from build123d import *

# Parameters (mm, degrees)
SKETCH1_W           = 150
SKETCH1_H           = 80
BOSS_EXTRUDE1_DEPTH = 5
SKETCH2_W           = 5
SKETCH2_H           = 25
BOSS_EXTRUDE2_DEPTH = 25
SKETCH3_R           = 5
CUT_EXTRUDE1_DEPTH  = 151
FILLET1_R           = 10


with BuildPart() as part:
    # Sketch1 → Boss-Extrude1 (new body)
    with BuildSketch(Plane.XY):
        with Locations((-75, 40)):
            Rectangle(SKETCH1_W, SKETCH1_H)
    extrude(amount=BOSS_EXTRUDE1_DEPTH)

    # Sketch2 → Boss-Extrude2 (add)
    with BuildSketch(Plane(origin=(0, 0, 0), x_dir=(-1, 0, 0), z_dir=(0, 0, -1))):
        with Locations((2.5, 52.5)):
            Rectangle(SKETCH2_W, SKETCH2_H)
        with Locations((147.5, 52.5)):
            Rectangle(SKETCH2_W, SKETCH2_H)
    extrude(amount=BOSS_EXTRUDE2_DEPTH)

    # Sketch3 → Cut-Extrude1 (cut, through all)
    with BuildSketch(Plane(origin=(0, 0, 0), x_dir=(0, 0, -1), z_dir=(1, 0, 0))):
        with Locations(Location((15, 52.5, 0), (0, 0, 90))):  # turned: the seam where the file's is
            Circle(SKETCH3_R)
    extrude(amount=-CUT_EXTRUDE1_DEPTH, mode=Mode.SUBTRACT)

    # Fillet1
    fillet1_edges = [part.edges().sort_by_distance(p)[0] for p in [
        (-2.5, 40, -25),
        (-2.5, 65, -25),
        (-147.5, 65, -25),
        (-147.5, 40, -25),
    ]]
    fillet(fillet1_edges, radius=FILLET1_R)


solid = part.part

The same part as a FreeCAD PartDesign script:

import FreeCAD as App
import Part
import Sketcher

V = App.Vector


def edges_at(feature, points):
    """Names of the edges that pass closest to the given points."""
    edges = feature.Shape.Edges
    near = lambda p: min(range(len(edges)), key=lambda i: edges[i].distToShape(Part.Vertex(*p))[0])
    return sorted({f"Edge{near(p) + 1}" for p in points})

doc = App.newDocument("Part")
params = doc.addObject("Spreadsheet::Sheet", "Params")
for row, (alias, value) in enumerate([
    ("sketch1_width", "150 mm"),
    ("sketch1_height", "80 mm"),
    ("pad1_length", "5 mm"),
    ("sketch2_width", "5 mm"),
    ("sketch2_height", "25 mm"),
    ("pad2_length", "25 mm"),
    ("sketch3_diameter", "10 mm"),
    ("fillet_radius", "10 mm"),
], start=1):
    params.set(f"A{row}", alias)
    params.set(f"B{row}", "=" + value)
    params.setAlias(f"B{row}", alias)

body = doc.addObject("PartDesign::Body", "Body")

# Sketch on XY plane
sketch1 = body.newObject("Sketcher::SketchObject", "Sketch")
sketch1.AttachmentSupport = (doc.getObject("XY_Plane"), [""])
sketch1.MapMode = "FlatFace"
sketch1.addGeometry(Part.LineSegment(V(-150, 80, 0), V(-150, 0, 0)), False)
sketch1.addGeometry(Part.LineSegment(V(-150, 0, 0), V(0, 0, 0)), False)
sketch1.addGeometry(Part.LineSegment(V(0, 0, 0), V(0, 80, 0)), False)
sketch1.addGeometry(Part.LineSegment(V(0, 80, 0), V(-150, 80, 0)), False)
sketch1.addConstraint(Sketcher.Constraint("Coincident", 0, 2, 1, 1))
sketch1.addConstraint(Sketcher.Constraint("Coincident", 1, 2, 2, 1))
sketch1.addConstraint(Sketcher.Constraint("Coincident", 2, 2, 3, 1))
sketch1.addConstraint(Sketcher.Constraint("Coincident", 3, 2, 0, 1))
sketch1.addConstraint(Sketcher.Constraint("Vertical", 0))
sketch1.addConstraint(Sketcher.Constraint("Horizontal", 1))
sketch1.addConstraint(Sketcher.Constraint("Vertical", 2))
sketch1.addConstraint(Sketcher.Constraint("Horizontal", 3))
sketch1.addConstraint(Sketcher.Constraint("Coincident", 1, 2, -1, 1))
sketch1.addConstraint(Sketcher.Constraint("DistanceX", 1, 1, 1, 2, 150.0))
sketch1.addConstraint(Sketcher.Constraint("DistanceY", 0, 2, 0, 1, 80.0))
sketch1.setExpression("Constraints[9]", "Params.sketch1_width")
sketch1.setExpression("Constraints[10]", "Params.sketch1_height")
pad1 = body.newObject("PartDesign::Pad", "Pad")
pad1.Profile = sketch1
pad1.setExpression("Length", "Params.pad1_length")

# Sketch on XY plane
sketch2 = body.newObject("Sketcher::SketchObject", "Sketch001")
sketch2.AttachmentSupport = (doc.getObject("XY_Plane"), [""])
sketch2.MapMode = "FlatFace"
sketch2.addGeometry(Part.LineSegment(V(0, 65, 0), V(0, 40, 0)), False)
sketch2.addGeometry(Part.LineSegment(V(0, 40, 0), V(-5, 40, 0)), False)
sketch2.addGeometry(Part.LineSegment(V(-5, 40, 0), V(-5, 65, 0)), False)
sketch2.addGeometry(Part.LineSegment(V(-5, 65, 0), V(0, 65, 0)), False)
sketch2.addGeometry(Part.LineSegment(V(-145, 65, 0), V(-145, 40, 0)), False)
sketch2.addGeometry(Part.LineSegment(V(-145, 40, 0), V(-150, 40, 0)), False)
sketch2.addGeometry(Part.LineSegment(V(-150, 40, 0), V(-150, 65, 0)), False)
sketch2.addGeometry(Part.LineSegment(V(-150, 65, 0), V(-145, 65, 0)), False)
sketch2.addConstraint(Sketcher.Constraint("Coincident", 0, 2, 1, 1))
sketch2.addConstraint(Sketcher.Constraint("Coincident", 1, 2, 2, 1))
sketch2.addConstraint(Sketcher.Constraint("Coincident", 2, 2, 3, 1))
sketch2.addConstraint(Sketcher.Constraint("Coincident", 3, 2, 0, 1))
sketch2.addConstraint(Sketcher.Constraint("Coincident", 4, 2, 5, 1))
sketch2.addConstraint(Sketcher.Constraint("Coincident", 5, 2, 6, 1))
sketch2.addConstraint(Sketcher.Constraint("Coincident", 6, 2, 7, 1))
sketch2.addConstraint(Sketcher.Constraint("Coincident", 7, 2, 4, 1))
sketch2.addConstraint(Sketcher.Constraint("Vertical", 0))
sketch2.addConstraint(Sketcher.Constraint("Horizontal", 1))
sketch2.addConstraint(Sketcher.Constraint("Vertical", 2))
sketch2.addConstraint(Sketcher.Constraint("Horizontal", 3))
sketch2.addConstraint(Sketcher.Constraint("Vertical", 4))
sketch2.addConstraint(Sketcher.Constraint("Horizontal", 5))
sketch2.addConstraint(Sketcher.Constraint("Vertical", 6))
sketch2.addConstraint(Sketcher.Constraint("Horizontal", 7))
sketch2.addConstraint(Sketcher.Constraint("PointOnObject", 0, 2, -2))
sketch2.addConstraint(Sketcher.Constraint("Horizontal", 1, 2, 4, 2))
sketch2.addConstraint(Sketcher.Constraint("Horizontal", 3, 2, 6, 2))
sketch2.addConstraint(Sketcher.Constraint("Equal", 3, 5))
sketch2.addConstraint(Sketcher.Constraint("DistanceX", 1, 2, 1, 1, 5.0))
sketch2.addConstraint(Sketcher.Constraint("DistanceY", 0, 2, 0, 1, 25.0))
sketch2.addConstraint(Sketcher.Constraint("DistanceY", -1, 1, 0, 2, 40.0))
sketch2.addConstraint(Sketcher.Constraint("DistanceX", 4, 2, -1, 1, 145.0))
sketch2.setExpression("Constraints[20]", "Params.sketch2_width")
sketch2.setExpression("Constraints[21]", "Params.sketch2_height")
pad2 = body.newObject("PartDesign::Pad", "Pad001")
pad2.Profile = sketch2
pad2.setExpression("Length", "Params.pad2_length")
pad2.Reversed = True

# Sketch on YZ plane
sketch3 = body.newObject("Sketcher::SketchObject", "Sketch002")
sketch3.AttachmentSupport = (doc.getObject("YZ_Plane"), [""])
sketch3.MapMode = "FlatFace"
sketch3.addGeometry(Part.Circle(V(52, -15, 0), V(0, 0, 1), 5), False)
sketch3.addConstraint(Sketcher.Constraint("Diameter", 0, 10.0))
sketch3.addConstraint(Sketcher.Constraint("DistanceY", 0, 3, -1, 1, 15.0))
sketch3.addConstraint(Sketcher.Constraint("DistanceX", -1, 1, 0, 3, 52.5))
sketch3.setExpression("Constraints[0]", "Params.sketch3_diameter")
pocket1 = body.newObject("PartDesign::Pocket", "Pocket")
pocket1.Profile = sketch3
pocket1.Type = "ThroughAll"
doc.recompute()

fillet = body.newObject("PartDesign::Fillet", "Fillet")
fillet.Base = (pocket1, edges_at(pocket1, [
    (-2.5, 40, -25),
    (-2.5, 65, -25),
    (-147.5, 65, -25),
    (-147.5, 40, -25),
]))
fillet.setExpression("Radius", "Params.fillet_radius")

doc.recompute()
